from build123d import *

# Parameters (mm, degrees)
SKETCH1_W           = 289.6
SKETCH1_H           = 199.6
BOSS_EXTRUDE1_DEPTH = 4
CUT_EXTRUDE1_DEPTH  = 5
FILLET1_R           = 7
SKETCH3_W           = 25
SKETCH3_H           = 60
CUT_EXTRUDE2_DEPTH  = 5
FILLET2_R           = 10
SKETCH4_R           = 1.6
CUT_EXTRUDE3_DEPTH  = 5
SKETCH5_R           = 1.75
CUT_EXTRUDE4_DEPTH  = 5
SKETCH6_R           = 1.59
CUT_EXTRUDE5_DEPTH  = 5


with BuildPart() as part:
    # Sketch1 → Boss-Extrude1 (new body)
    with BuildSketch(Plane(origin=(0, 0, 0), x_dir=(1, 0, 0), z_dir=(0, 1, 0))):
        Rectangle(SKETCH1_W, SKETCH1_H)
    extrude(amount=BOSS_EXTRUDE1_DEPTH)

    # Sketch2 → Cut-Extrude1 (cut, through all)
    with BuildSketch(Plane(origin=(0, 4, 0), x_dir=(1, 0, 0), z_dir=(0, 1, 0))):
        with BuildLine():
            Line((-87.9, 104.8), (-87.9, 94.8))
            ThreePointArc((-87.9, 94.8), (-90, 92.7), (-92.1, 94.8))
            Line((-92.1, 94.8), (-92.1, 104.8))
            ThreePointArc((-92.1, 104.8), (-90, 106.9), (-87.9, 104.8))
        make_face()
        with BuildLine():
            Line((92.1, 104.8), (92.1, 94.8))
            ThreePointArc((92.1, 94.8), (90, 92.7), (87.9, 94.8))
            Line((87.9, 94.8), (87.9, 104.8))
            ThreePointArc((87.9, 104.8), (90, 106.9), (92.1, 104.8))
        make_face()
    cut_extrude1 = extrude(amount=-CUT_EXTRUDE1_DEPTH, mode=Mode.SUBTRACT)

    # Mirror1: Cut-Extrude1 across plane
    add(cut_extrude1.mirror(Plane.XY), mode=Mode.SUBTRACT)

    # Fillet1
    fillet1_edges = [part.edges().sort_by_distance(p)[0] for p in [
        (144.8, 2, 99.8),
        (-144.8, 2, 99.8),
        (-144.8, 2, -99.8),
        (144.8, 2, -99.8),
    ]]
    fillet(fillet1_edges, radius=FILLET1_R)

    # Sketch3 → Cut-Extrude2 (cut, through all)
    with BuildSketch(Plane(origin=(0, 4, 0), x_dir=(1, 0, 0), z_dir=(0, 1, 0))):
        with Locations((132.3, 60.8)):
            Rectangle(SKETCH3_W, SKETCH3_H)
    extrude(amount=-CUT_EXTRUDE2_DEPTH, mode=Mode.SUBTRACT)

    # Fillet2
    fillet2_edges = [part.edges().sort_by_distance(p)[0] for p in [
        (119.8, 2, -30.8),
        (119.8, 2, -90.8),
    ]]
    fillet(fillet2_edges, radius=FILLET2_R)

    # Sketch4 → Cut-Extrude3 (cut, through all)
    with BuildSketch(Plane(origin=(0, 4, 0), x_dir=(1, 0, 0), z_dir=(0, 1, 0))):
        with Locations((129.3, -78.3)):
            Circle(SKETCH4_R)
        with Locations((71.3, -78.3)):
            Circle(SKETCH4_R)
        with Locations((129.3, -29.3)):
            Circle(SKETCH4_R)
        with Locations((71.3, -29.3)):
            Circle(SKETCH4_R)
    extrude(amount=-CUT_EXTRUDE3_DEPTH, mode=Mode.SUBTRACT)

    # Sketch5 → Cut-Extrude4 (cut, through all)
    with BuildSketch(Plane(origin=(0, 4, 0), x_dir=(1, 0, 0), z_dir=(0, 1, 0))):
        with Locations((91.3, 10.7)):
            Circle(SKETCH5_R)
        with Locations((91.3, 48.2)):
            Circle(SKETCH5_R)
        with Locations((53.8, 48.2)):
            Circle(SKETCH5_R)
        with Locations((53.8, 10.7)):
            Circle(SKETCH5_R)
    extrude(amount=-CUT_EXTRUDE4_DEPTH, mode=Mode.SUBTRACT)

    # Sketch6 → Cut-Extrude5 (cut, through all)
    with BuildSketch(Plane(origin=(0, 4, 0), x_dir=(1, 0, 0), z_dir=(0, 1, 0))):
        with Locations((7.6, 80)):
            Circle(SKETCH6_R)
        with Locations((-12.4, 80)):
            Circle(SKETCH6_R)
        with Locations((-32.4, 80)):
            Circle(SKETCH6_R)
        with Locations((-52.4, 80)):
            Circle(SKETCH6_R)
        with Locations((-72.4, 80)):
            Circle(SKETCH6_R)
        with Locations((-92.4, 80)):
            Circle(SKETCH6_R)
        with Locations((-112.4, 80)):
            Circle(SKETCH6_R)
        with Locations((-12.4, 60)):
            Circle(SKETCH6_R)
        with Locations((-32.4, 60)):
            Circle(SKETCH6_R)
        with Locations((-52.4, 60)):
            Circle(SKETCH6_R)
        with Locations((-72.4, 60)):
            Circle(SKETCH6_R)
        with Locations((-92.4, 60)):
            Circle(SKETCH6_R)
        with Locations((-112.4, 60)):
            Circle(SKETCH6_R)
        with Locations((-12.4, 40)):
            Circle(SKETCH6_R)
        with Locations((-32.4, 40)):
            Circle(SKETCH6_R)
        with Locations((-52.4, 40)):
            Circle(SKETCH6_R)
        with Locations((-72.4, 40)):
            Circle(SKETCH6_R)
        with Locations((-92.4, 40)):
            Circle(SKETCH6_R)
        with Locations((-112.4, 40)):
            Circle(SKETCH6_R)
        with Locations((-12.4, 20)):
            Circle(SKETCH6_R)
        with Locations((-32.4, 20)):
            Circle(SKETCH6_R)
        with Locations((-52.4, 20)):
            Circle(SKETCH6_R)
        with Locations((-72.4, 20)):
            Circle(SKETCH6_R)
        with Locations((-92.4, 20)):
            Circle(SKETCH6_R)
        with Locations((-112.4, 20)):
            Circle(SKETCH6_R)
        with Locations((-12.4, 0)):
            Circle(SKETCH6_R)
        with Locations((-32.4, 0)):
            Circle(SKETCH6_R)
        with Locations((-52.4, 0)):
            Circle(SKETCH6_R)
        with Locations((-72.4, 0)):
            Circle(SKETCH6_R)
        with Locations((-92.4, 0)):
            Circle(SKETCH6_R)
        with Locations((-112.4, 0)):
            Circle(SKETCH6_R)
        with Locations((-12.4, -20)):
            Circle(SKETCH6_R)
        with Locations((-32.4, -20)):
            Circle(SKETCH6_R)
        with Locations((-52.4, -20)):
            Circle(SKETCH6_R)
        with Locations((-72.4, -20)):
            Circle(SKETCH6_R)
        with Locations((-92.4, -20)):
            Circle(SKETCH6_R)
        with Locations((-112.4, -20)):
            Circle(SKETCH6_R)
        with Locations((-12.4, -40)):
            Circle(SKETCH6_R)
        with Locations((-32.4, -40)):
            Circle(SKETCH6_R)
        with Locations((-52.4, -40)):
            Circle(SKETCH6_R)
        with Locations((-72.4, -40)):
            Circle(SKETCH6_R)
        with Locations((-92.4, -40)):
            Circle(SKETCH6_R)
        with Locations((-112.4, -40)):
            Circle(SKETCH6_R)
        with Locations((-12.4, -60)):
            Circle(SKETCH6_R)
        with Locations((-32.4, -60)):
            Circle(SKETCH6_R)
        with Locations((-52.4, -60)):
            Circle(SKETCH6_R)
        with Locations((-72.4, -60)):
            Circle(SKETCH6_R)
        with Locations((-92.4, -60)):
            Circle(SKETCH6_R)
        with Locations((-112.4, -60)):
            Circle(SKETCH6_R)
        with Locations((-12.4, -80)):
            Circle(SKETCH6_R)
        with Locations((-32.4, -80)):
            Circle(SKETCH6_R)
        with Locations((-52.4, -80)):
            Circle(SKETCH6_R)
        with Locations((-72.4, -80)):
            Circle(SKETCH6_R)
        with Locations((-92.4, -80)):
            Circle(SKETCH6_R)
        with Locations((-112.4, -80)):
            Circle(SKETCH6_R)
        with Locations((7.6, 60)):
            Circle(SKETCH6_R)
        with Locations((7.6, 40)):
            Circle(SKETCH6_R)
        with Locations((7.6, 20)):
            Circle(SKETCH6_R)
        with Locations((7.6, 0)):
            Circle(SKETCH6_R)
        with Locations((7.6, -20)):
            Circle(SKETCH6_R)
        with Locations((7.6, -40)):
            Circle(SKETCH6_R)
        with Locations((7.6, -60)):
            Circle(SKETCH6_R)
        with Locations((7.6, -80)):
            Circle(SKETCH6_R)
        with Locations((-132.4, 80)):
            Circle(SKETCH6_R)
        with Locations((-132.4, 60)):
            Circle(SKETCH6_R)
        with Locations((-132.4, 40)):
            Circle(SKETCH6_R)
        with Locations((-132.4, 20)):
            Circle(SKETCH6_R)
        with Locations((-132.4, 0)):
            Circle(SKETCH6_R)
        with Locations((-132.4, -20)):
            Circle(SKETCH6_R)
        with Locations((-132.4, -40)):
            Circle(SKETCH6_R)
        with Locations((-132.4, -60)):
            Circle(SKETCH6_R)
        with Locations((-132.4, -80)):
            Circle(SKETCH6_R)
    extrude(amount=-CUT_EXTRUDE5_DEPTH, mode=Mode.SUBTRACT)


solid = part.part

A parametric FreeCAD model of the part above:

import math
import FreeCAD as App
import Part
import Sketcher

V = App.Vector


def edges_at(feature, points):
    """Names of the edges that pass closest to the given points."""
    edges = feature.Shape.Edges
    near = lambda p: min(range(len(edges)), key=lambda i: edges[i].distToShape(Part.Vertex(*p))[0])
    return sorted({f"Edge{near(p) + 1}" for p in points})

doc = App.newDocument("Part")
body = doc.addObject("PartDesign::Body", "Body")

# Sketch on XZ plane
sketch1 = body.newObject("Sketcher::SketchObject", "Sketch")
sketch1.AttachmentSupport = (doc.getObject("XZ_Plane"), [""])
sketch1.MapMode = "FlatFace"
sketch1.addGeometry(Part.LineSegment(V(-145, -100, 0), V(-145, 100, 0)), False)
sketch1.addGeometry(Part.LineSegment(V(-145, 100, 0), V(145, 100, 0)), False)
sketch1.addGeometry(Part.LineSegment(V(145, 100, 0), V(145, -100, 0)), False)
sketch1.addGeometry(Part.LineSegment(V(145, -100, 0), V(-145, -100, 0)), False)
sketch1.addConstraint(Sketcher.Constraint("Coincident", 0, 2, 1, 1))
sketch1.addConstraint(Sketcher.Constraint("Coincident", 1, 2, 2, 1))
sketch1.addConstraint(Sketcher.Constraint("Coincident", 2, 2, 3, 1))
sketch1.addConstraint(Sketcher.Constraint("Coincident", 3, 2, 0, 1))
sketch1.addConstraint(Sketcher.Constraint("Vertical", 0))
sketch1.addConstraint(Sketcher.Constraint("Horizontal", 1))
sketch1.addConstraint(Sketcher.Constraint("Vertical", 2))
sketch1.addConstraint(Sketcher.Constraint("Horizontal", 3))
sketch1.addConstraint(Sketcher.Constraint("Symmetric", 0, 2, 2, 2, -1, 1))
sketch1.addConstraint(Sketcher.Constraint("DistanceX", 1, 1, 1, 2, 289.6))
sketch1.addConstraint(Sketcher.Constraint("DistanceY", 0, 1, 0, 2, 199.6))
pad1 = body.newObject("PartDesign::Pad", "Pad")
pad1.Profile = sketch1
pad1.Length = 4
pad1.Reversed = True

# Sketch on XZ plane
sketch2 = body.newObject("Sketcher::SketchObject", "Sketch001")
sketch2.AttachmentSupport = (doc.getObject("XZ_Plane"), [""])
sketch2.MapMode = "FlatFace"
sketch2.AttachmentOffset = App.Placement(V(0, 0, -4), App.Rotation())
sketch2.addGeometry(Part.LineSegment(V(-87.9, -94.8, 0), V(-87.9, -104.8, 0)), False)
sketch2.addGeometry(Part.ArcOfCircle(Part.Circle(V(-90, -104.8, 0), V(0, 0, 1), 2.1), math.radians(180), math.radians(360)), False)
sketch2.addGeometry(Part.LineSegment(V(-92.1, -104.8, 0), V(-92.1, -94.8, 0)), False)
sketch2.addGeometry(Part.ArcOfCircle(Part.Circle(V(-90, -94.8, 0), V(0, 0, 1), 2.1), math.radians(0), math.radians(180)), False)
sketch2.addGeometry(Part.LineSegment(V(92.1, -94.8, 0), V(92.1, -104.8, 0)), False)
sketch2.addGeometry(Part.ArcOfCircle(Part.Circle(V(90, -104.8, 0), V(0, 0, 1), 2.1), math.radians(180), math.radians(360)), False)
sketch2.addGeometry(Part.LineSegment(V(87.9, -104.8, 0), V(87.9, -94.8, 0)), False)
sketch2.addGeometry(Part.ArcOfCircle(Part.Circle(V(90, -94.8, 0), V(0, 0, 1), 2.1), math.radians(0), math.radians(180)), False)
sketch2.addConstraint(Sketcher.Constraint("Tangent", 0, 2, 1, 2))
sketch2.addConstraint(Sketcher.Constraint("Tangent", 1, 1, 2, 1))
sketch2.addConstraint(Sketcher.Constraint("Tangent", 2, 2, 3, 2))
sketch2.addConstraint(Sketcher.Constraint("Tangent", 3, 1, 0, 1))
sketch2.addConstraint(Sketcher.Constraint("Tangent", 4, 2, 5, 2))
sketch2.addConstraint(Sketcher.Constraint("Tangent", 5, 1, 6, 1))
sketch2.addConstraint(Sketcher.Constraint("Tangent", 6, 2, 7, 2))
sketch2.addConstraint(Sketcher.Constraint("Tangent", 7, 1, 4, 1))
sketch2.addConstraint(Sketcher.Constraint("Vertical", 0))
sketch2.addConstraint(Sketcher.Constraint("Vertical", 2))
sketch2.addConstraint(Sketcher.Constraint("Vertical", 4))
sketch2.addConstraint(Sketcher.Constraint("Vertical", 6))
sketch2.addConstraint(Sketcher.Constraint("Equal", 3, 5))
sketch2.addConstraint(Sketcher.Constraint("Symmetric", 1, 3, 5, 3, -2))
sketch2.addConstraint(Sketcher.Constraint("Horizontal", 3, 3, 7, 3))
sketch2.addConstraint(Sketcher.Constraint("Radius", 1, 2.1))
sketch2.addConstraint(Sketcher.Constraint("DistanceY", 0, 2, 0, 1, 10.0))
sketch2.addConstraint(Sketcher.Constraint("DistanceX", 1, 3, -1, 1, 90.0))
sketch2.addConstraint(Sketcher.Constraint("DistanceY", 1, 3, -1, 1, 104.8))
pocket1 = body.newObject("PartDesign::Pocket", "Pocket")
pocket1.Profile = sketch2
pocket1.Type = "ThroughAll"
pocket1.Reversed = True
doc.recompute()

mirrored = body.newObject("PartDesign::Mirrored", "Mirrored")
mirrored.Originals = [pocket1]
mirrored.MirrorPlane = (doc.getObject("XY_Plane"), [""])
body.Tip = mirrored
doc.recompute()

fillet = body.newObject("PartDesign::Fillet", "Fillet")
fillet.Base = (mirrored, edges_at(mirrored, [
    (144.8, 2, 99.8),
    (-144.8, 2, 99.8),
    (-144.8, 2, -99.8),
    (144.8, 2, -99.8),
]))
fillet.Radius = 7

# Sketch on XZ plane
sketch3 = body.newObject("Sketcher::SketchObject", "Sketch002")
sketch3.AttachmentSupport = (doc.getObject("XZ_Plane"), [""])
sketch3.MapMode = "FlatFace"
sketch3.AttachmentOffset = App.Placement(V(0, 0, -4), App.Rotation())
sketch3.addGeometry(Part.LineSegment(V(120, -91, 0), V(120, -31, 0)), False)
sketch3.addGeometry(Part.LineSegment(V(120, -31, 0), V(145, -31, 0)), False)
sketch3.addGeometry(Part.LineSegment(V(145, -31, 0), V(145, -91, 0)), False)
sketch3.addGeometry(Part.LineSegment(V(145, -91, 0), V(120, -91, 0)), False)
sketch3.addConstraint(Sketcher.Constraint("Coincident", 0, 2, 1, 1))
sketch3.addConstraint(Sketcher.Constraint("Coincident", 1, 2, 2, 1))
sketch3.addConstraint(Sketcher.Constraint("Coincident", 2, 2, 3, 1))
sketch3.addConstraint(Sketcher.Constraint("Coincident", 3, 2, 0, 1))
sketch3.addConstraint(Sketcher.Constraint("Vertical", 0))
sketch3.addConstraint(Sketcher.Constraint("Horizontal", 1))
sketch3.addConstraint(Sketcher.Constraint("Vertical", 2))
sketch3.addConstraint(Sketcher.Constraint("Horizontal", 3))
sketch3.addConstraint(Sketcher.Constraint("DistanceX", 1, 1, 1, 2, 25.0))
sketch3.addConstraint(Sketcher.Constraint("DistanceY", 0, 1, 0, 2, 60.0))
sketch3.addConstraint(Sketcher.Constraint("DistanceX", -1, 1, 0, 2, 119.8))
sketch3.addConstraint(Sketcher.Constraint("DistanceY", 0, 2, -1, 1, 30.8))
pocket2 = body.newObject("PartDesign::Pocket", "Pocket001")
pocket2.Profile = sketch3
pocket2.Type = "ThroughAll"
pocket2.Reversed = True
doc.recompute()

fillet2 = body.newObject("PartDesign::Fillet", "Fillet001")
fillet2.Base = (pocket2, edges_at(pocket2, [(119.8, 2, -30.8), (119.8, 2, -90.8)]))
fillet2.Radius = 10

# Sketch on XZ plane
sketch4 = body.newObject("Sketcher::SketchObject", "Sketch003")
sketch4.AttachmentSupport = (doc.getObject("XZ_Plane"), [""])
sketch4.MapMode = "FlatFace"
sketch4.AttachmentOffset = App.Placement(V(0, 0, -4), App.Rotation())
sketch4.addGeometry(Part.Circle(V(129.3, 78.3, 0), V(0, 0, 1), 1.6), False)
sketch4.addGeometry(Part.Circle(V(71.3, 78.3, 0), V(0, 0, 1), 1.6), False)
sketch4.addGeometry(Part.Circle(V(129.3, 29.3, 0), V(0, 0, 1), 1.6), False)
sketch4.addGeometry(Part.Circle(V(71.3, 29.3, 0), V(0, 0, 1), 1.6), False)
sketch4.addConstraint(Sketcher.Constraint("Equal", 0, 1))
sketch4.addConstraint(Sketcher.Constraint("Equal", 1, 2))
sketch4.addConstraint(Sketcher.Constraint("Equal", 2, 3))
sketch4.addConstraint(Sketcher.Constraint("Horizontal", 0, 3, 1, 3))
sketch4.addConstraint(Sketcher.Constraint("Horizontal", 2, 3, 3, 3))
sketch4.addConstraint(Sketcher.Constraint("Vertical", 0, 3, 2, 3))
sketch4.addConstraint(Sketcher.Constraint("Vertical", 1, 3, 3, 3))
sketch4.addConstraint(Sketcher.Constraint("Diameter", 0, 3.2))
sketch4.addConstraint(Sketcher.Constraint("DistanceX", 1, 3, 0, 3, 58.0))
sketch4.addConstraint(Sketcher.Constraint("DistanceY", 2, 3, 0, 3, 49.0))
sketch4.addConstraint(Sketcher.Constraint("DistanceX", -1, 1, 0, 3, 129.3))
sketch4.addConstraint(Sketcher.Constraint("DistanceY", -1, 1, 0, 3, 78.3))
pocket3 = body.newObject("PartDesign::Pocket", "Pocket002")
pocket3.Profile = sketch4
pocket3.Type = "ThroughAll"
pocket3.Reversed = True

# Sketch on XZ plane
sketch5 = body.newObject("Sketcher::SketchObject", "Sketch004")
sketch5.AttachmentSupport = (doc.getObject("XZ_Plane"), [""])
sketch5.MapMode = "FlatFace"
sketch5.AttachmentOffset = App.Placement(V(0, 0, -4), App.Rotation())
sketch5.addGeometry(Part.Circle(V(91.3, -10.7, 0), V(0, 0, 1), 1.8), False)
sketch5.addGeometry(Part.Circle(V(91.3, -48.2, 0), V(0, 0, 1), 1.8), False)
sketch5.addGeometry(Part.Circle(V(53.8, -48.2, 0), V(0, 0, 1), 1.8), False)
sketch5.addGeometry(Part.Circle(V(53.8, -10.7, 0), V(0, 0, 1), 1.8), False)
sketch5.addConstraint(Sketcher.Constraint("Equal", 0, 1))
sketch5.addConstraint(Sketcher.Constraint("Equal", 1, 2))
sketch5.addConstraint(Sketcher.Constraint("Equal", 2, 3))
sketch5.addConstraint(Sketcher.Constraint("Horizontal", 1, 3, 2, 3))
sketch5.addConstraint(Sketcher.Constraint("Horizontal", 0, 3, 3, 3))
sketch5.addConstraint(Sketcher.Constraint("Vertical", 0, 3, 1, 3))
sketch5.addConstraint(Sketcher.Constraint("Vertical", 2, 3, 3, 3))
sketch5.addConstraint(Sketcher.Constraint("Diameter", 0, 3.5))
sketch5.addConstraint(Sketcher.Constraint("DistanceX", -1, 1, 0, 3, 91.3))
sketch5.addConstraint(Sketcher.Constraint("DistanceY", 0, 3, -1, 1, 10.7))
sketch5.addConstraint(Sketcher.Constraint("DistanceY", 1, 3, -1, 1, 48.2))
sketch5.addConstraint(Sketcher.Constraint("DistanceX", -1, 1, 2, 3, 53.8))
pocket4 = body.newObject("PartDesign::Pocket", "Pocket003")
pocket4.Profile = sketch5
pocket4.Type = "ThroughAll"
pocket4.Reversed = True

# Sketch on XZ plane
sketch6 = body.newObject("Sketcher::SketchObject", "Sketch005")
sketch6.AttachmentSupport = (doc.getObject("XZ_Plane"), [""])
sketch6.MapMode = "FlatFace"
sketch6.AttachmentOffset = App.Placement(V(0, 0, -4), App.Rotation())
sketch6.addGeometry(Part.Circle(V(7.6, -80, 0), V(0, 0, 1), 1.6), False)
sketch6.addGeometry(Part.Circle(V(-12.4, -80, 0), V(0, 0, 1), 1.6), False)
sketch6.addGeometry(Part.Circle(V(-32.4, -80, 0), V(0, 0, 1), 1.6), False)
sketch6.addGeometry(Part.Circle(V(-52.4, -80, 0), V(0, 0, 1), 1.6), False)
sketch6.addGeometry(Part.Circle(V(-72.4, -80, 0), V(0, 0, 1), 1.6), False)
sketch6.addGeometry(Part.Circle(V(-92.4, -80, 0), V(0, 0, 1), 1.6), False)
sketch6.addGeometry(Part.Circle(V(-112.4, -80, 0), V(0, 0, 1), 1.6), False)
sketch6.addGeometry(Part.Circle(V(-12.4, -60, 0), V(0, 0, 1), 1.6), False)
sketch6.addGeometry(Part.Circle(V(-32.4, -60, 0), V(0, 0, 1), 1.6), False)
sketch6.addGeometry(Part.Circle(V(-52.4, -60, 0), V(0, 0, 1), 1.6), False)
sketch6.addGeometry(Part.Circle(V(-72.4, -60, 0), V(0, 0, 1), 1.6), False)
sketch6.addGeometry(Part.Circle(V(-92.4, -60, 0), V(0, 0, 1), 1.6), False)
sketch6.addGeometry(Part.Circle(V(-112.4, -60, 0), V(0, 0, 1), 1.6), False)
sketch6.addGeometry(Part.Circle(V(-12.4, -40, 0), V(0, 0, 1), 1.6), False)
sketch6.addGeometry(Part.Circle(V(-32.4, -40, 0), V(0, 0, 1), 1.6), False)
sketch6.addGeometry(Part.Circle(V(-52.4, -40, 0), V(0, 0, 1), 1.6), False)
sketch6.addGeometry(Part.Circle(V(-72.4, -40, 0), V(0, 0, 1), 1.6), False)
sketch6.addGeometry(Part.Circle(V(-92.4, -40, 0), V(0, 0, 1), 1.6), False)
sketch6.addGeometry(Part.Circle(V(-112.4, -40, 0), V(0, 0, 1), 1.6), False)
sketch6.addGeometry(Part.Circle(V(-12.4, -20, 0), V(0, 0, 1), 1.6), False)
sketch6.addGeometry(Part.Circle(V(-32.4, -20, 0), V(0, 0, 1), 1.6), False)
sketch6.addGeometry(Part.Circle(V(-52.4, -20, 0), V(0, 0, 1), 1.6), False)
sketch6.addGeometry(Part.Circle(V(-72.4, -20, 0), V(0, 0, 1), 1.6), False)
sketch6.addGeometry(Part.Circle(V(-92.4, -20, 0), V(0, 0, 1), 1.6), False)
sketch6.addGeometry(Part.Circle(V(-112.4, -20, 0), V(0, 0, 1), 1.6), False)
sketch6.addGeometry(Part.Circle(V(-12.4, 0, 0), V(0, 0, 1), 1.6), False)
sketch6.addGeometry(Part.Circle(V(-32.4, 0, 0), V(0, 0, 1), 1.6), False)
sketch6.addGeometry(Part.Circle(V(-52.4, 0, 0), V(0, 0, 1), 1.6), False)
sketch6.addGeometry(Part.Circle(V(-72.4, 0, 0), V(0, 0, 1), 1.6), False)
sketch6.addGeometry(Part.Circle(V(-92.4, 0, 0), V(0, 0, 1), 1.6), False)
sketch6.addGeometry(Part.Circle(V(-112.4, 0, 0), V(0, 0, 1), 1.6), False)
sketch6.addGeometry(Part.Circle(V(-12.4, 20, 0), V(0, 0, 1), 1.6), False)
sketch6.addGeometry(Part.Circle(V(-32.4, 20, 0), V(0, 0, 1), 1.6), False)
sketch6.addGeometry(Part.Circle(V(-52.4, 20, 0), V(0, 0, 1), 1.6), False)
sketch6.addGeometry(Part.Circle(V(-72.4, 20, 0), V(0, 0, 1), 1.6), False)
sketch6.addGeometry(Part.Circle(V(-92.4, 20, 0), V(0, 0, 1), 1.6), False)
sketch6.addGeometry(Part.Circle(V(-112.4, 20, 0), V(0, 0, 1), 1.6), False)
sketch6.addGeometry(Part.Circle(V(-12.4, 40, 0), V(0, 0, 1), 1.6), False)
sketch6.addGeometry(Part.Circle(V(-32.4, 40, 0), V(0, 0, 1), 1.6), False)
sketch6.addGeometry(Part.Circle(V(-52.4, 40, 0), V(0, 0, 1), 1.6), False)
sketch6.addGeometry(Part.Circle(V(-72.4, 40, 0), V(0, 0, 1), 1.6), False)
sketch6.addGeometry(Part.Circle(V(-92.4, 40, 0), V(0, 0, 1), 1.6), False)
sketch6.addGeometry(Part.Circle(V(-112.4, 40, 0), V(0, 0, 1), 1.6), False)
sketch6.addGeometry(Part.Circle(V(-12.4, 60, 0), V(0, 0, 1), 1.6), False)
sketch6.addGeometry(Part.Circle(V(-32.4, 60, 0), V(0, 0, 1), 1.6), False)
sketch6.addGeometry(Part.Circle(V(-52.4, 60, 0), V(0, 0, 1), 1.6), False)
sketch6.addGeometry(Part.Circle(V(-72.4, 60, 0), V(0, 0, 1), 1.6), False)
sketch6.addGeometry(Part.Circle(V(-92.4, 60, 0), V(0, 0, 1), 1.6), False)
sketch6.addGeometry(Part.Circle(V(-112.4, 60, 0), V(0, 0, 1), 1.6), False)
sketch6.addGeometry(Part.Circle(V(-12.4, 80, 0), V(0, 0, 1), 1.6), False)
sketch6.addGeometry(Part.Circle(V(-32.4, 80, 0), V(0, 0, 1), 1.6), False)
sketch6.addGeometry(Part.Circle(V(-52.4, 80, 0), V(0, 0, 1), 1.6), False)
sketch6.addGeometry(Part.Circle(V(-72.4, 80, 0), V(0, 0, 1), 1.6), False)
sketch6.addGeometry(Part.Circle(V(-92.4, 80, 0), V(0, 0, 1), 1.6), False)
sketch6.addGeometry(Part.Circle(V(-112.4, 80, 0), V(0, 0, 1), 1.6), False)
sketch6.addGeometry(Part.Circle(V(7.6, -60, 0), V(0, 0, 1), 1.6), False)
sketch6.addGeometry(Part.Circle(V(7.6, -40, 0), V(0, 0, 1), 1.6), False)
sketch6.addGeometry(Part.Circle(V(7.6, -20, 0), V(0, 0, 1), 1.6), False)
sketch6.addGeometry(Part.Circle(V(7.6, 0, 0), V(0, 0, 1), 1.6), False)
sketch6.addGeometry(Part.Circle(V(7.6, 20, 0), V(0, 0, 1), 1.6), False)
sketch6.addGeometry(Part.Circle(V(7.6, 40, 0), V(0, 0, 1), 1.6), False)
sketch6.addGeometry(Part.Circle(V(7.6, 60, 0), V(0, 0, 1), 1.6), False)
sketch6.addGeometry(Part.Circle(V(7.6, 80, 0), V(0, 0, 1), 1.6), False)
sketch6.addGeometry(Part.Circle(V(-132.4, -80, 0), V(0, 0, 1), 1.6), False)
sketch6.addGeometry(Part.Circle(V(-132.4, -60, 0), V(0, 0, 1), 1.6), False)
sketch6.addGeometry(Part.Circle(V(-132.4, -40, 0), V(0, 0, 1), 1.6), False)
sketch6.addGeometry(Part.Circle(V(-132.4, -20, 0), V(0, 0, 1), 1.6), False)
sketch6.addGeometry(Part.Circle(V(-132.4, 0, 0), V(0, 0, 1), 1.6), False)
sketch6.addGeometry(Part.Circle(V(-132.4, 20, 0), V(0, 0, 1), 1.6), False)
sketch6.addGeometry(Part.Circle(V(-132.4, 40, 0), V(0, 0, 1), 1.6), False)
sketch6.addGeometry(Part.Circle(V(-132.4, 60, 0), V(0, 0, 1), 1.6), False)
sketch6.addGeometry(Part.Circle(V(-132.4, 80, 0), V(0, 0, 1), 1.6), False)
sketch6.addConstraint(Sketcher.Constraint("Equal", 0, 1))
sketch6.addConstraint(Sketcher.Constraint("Equal", 1, 2))
sketch6.addConstraint(Sketcher.Constraint("Equal", 2, 3))
sketch6.addConstraint(Sketcher.Constraint("Equal", 3, 4))
sketch6.addConstraint(Sketcher.Constraint("Equal", 4, 5))
sketch6.addConstraint(Sketcher.Constraint("Equal", 5, 6))
sketch6.addConstraint(Sketcher.Constraint("Equal", 6, 7))
sketch6.addConstraint(Sketcher.Constraint("Equal", 7, 8))
sketch6.addConstraint(Sketcher.Constraint("Equal", 8, 9))
sketch6.addConstraint(Sketcher.Constraint("Equal", 9, 10))
sketch6.addConstraint(Sketcher.Constraint("Equal", 10, 11))
sketch6.addConstraint(Sketcher.Constraint("Equal", 11, 12))
sketch6.addConstraint(Sketcher.Constraint("Equal", 12, 13))
sketch6.addConstraint(Sketcher.Constraint("Equal", 13, 14))
sketch6.addConstraint(Sketcher.Constraint("Equal", 14, 15))
sketch6.addConstraint(Sketcher.Constraint("Equal", 15, 16))
sketch6.addConstraint(Sketcher.Constraint("Equal", 16, 17))
sketch6.addConstraint(Sketcher.Constraint("Equal", 17, 18))
sketch6.addConstraint(Sketcher.Constraint("Equal", 18, 19))
sketch6.addConstraint(Sketcher.Constraint("Equal", 19, 20))
sketch6.addConstraint(Sketcher.Constraint("Equal", 20, 21))
sketch6.addConstraint(Sketcher.Constraint("Equal", 21, 22))
sketch6.addConstraint(Sketcher.Constraint("Equal", 22, 23))
sketch6.addConstraint(Sketcher.Constraint("Equal", 23, 24))
sketch6.addConstraint(Sketcher.Constraint("Equal", 24, 25))
sketch6.addConstraint(Sketcher.Constraint("Equal", 25, 26))
sketch6.addConstraint(Sketcher.Constraint("Equal", 26, 27))
sketch6.addConstraint(Sketcher.Constraint("Equal", 27, 28))
sketch6.addConstraint(Sketcher.Constraint("Equal", 28, 29))
sketch6.addConstraint(Sketcher.Constraint("Equal", 29, 30))
sketch6.addConstraint(Sketcher.Constraint("Equal", 30, 31))
sketch6.addConstraint(Sketcher.Constraint("Equal", 31, 32))
sketch6.addConstraint(Sketcher.Constraint("Equal", 32, 33))
sketch6.addConstraint(Sketcher.Constraint("Equal", 33, 34))
sketch6.addConstraint(Sketcher.Constraint("Equal", 34, 35))
sketch6.addConstraint(Sketcher.Constraint("Equal", 35, 36))
sketch6.addConstraint(Sketcher.Constraint("Equal", 36, 37))
sketch6.addConstraint(Sketcher.Constraint("Equal", 37, 38))
sketch6.addConstraint(Sketcher.Constraint("Equal", 38, 39))
sketch6.addConstraint(Sketcher.Constraint("Equal", 39, 40))
sketch6.addConstraint(Sketcher.Constraint("Equal", 40, 41))
sketch6.addConstraint(Sketcher.Constraint("Equal", 41, 42))
sketch6.addConstraint(Sketcher.Constraint("Equal", 42, 43))
sketch6.addConstraint(Sketcher.Constraint("Equal", 43, 44))
sketch6.addConstraint(Sketcher.Constraint("Equal", 44, 45))
sketch6.addConstraint(Sketcher.Constraint("Equal", 45, 46))
sketch6.addConstraint(Sketcher.Constraint("Equal", 46, 47))
sketch6.addConstraint(Sketcher.Constraint("Equal", 47, 48))
sketch6.addConstraint(Sketcher.Constraint("Equal", 48, 49))
sketch6.addConstraint(Sketcher.Constraint("Equal", 49, 50))
sketch6.addConstraint(Sketcher.Constraint("Equal", 50, 51))
sketch6.addConstraint(Sketcher.Constraint("Equal", 51, 52))
sketch6.addConstraint(Sketcher.Constraint("Equal", 52, 53))
sketch6.addConstraint(Sketcher.Constraint("Equal", 53, 54))
sketch6.addConstraint(Sketcher.Constraint("Equal", 54, 55))
sketch6.addConstraint(Sketcher.Constraint("Equal", 55, 56))
sketch6.addConstraint(Sketcher.Constraint("Equal", 56, 57))
sketch6.addConstraint(Sketcher.Constraint("Equal", 57, 58))
sketch6.addConstraint(Sketcher.Constraint("Equal", 58, 59))
sketch6.addConstraint(Sketcher.Constraint("Equal", 59, 60))
sketch6.addConstraint(Sketcher.Constraint("Equal", 60, 61))
sketch6.addConstraint(Sketcher.Constraint("Equal", 61, 62))
sketch6.addConstraint(Sketcher.Constraint("Equal", 62, 63))
sketch6.addConstraint(Sketcher.Constraint("Equal", 63, 64))
sketch6.addConstraint(Sketcher.Constraint("Equal", 64, 65))
sketch6.addConstraint(Sketcher.Constraint("Equal", 65, 66))
sketch6.addConstraint(Sketcher.Constraint("Equal", 66, 67))
sketch6.addConstraint(Sketcher.Constraint("Equal", 67, 68))
sketch6.addConstraint(Sketcher.Constraint("Equal", 68, 69))
sketch6.addConstraint(Sketcher.Constraint("Equal", 69, 70))
sketch6.addConstraint(Sketcher.Constraint("Equal", 70, 71))
sketch6.addConstraint(Sketcher.Constraint("Symmetric", 19, 3, 31, 3, -1))
sketch6.addConstraint(Sketcher.Constraint("Symmetric", 20, 3, 32, 3, -1))
sketch6.addConstraint(Sketcher.Constraint("Symmetric", 21, 3, 33, 3, -1))
sketch6.addConstraint(Sketcher.Constraint("Symmetric", 22, 3, 34, 3, -1))
sketch6.addConstraint(Sketcher.Constraint("Symmetric", 23, 3, 35, 3, -1))
sketch6.addConstraint(Sketcher.Constraint("Symmetric", 24, 3, 36, 3, -1))
sketch6.addConstraint(Sketcher.Constraint("Symmetric", 13, 3, 37, 3, -1))
sketch6.addConstraint(Sketcher.Constraint("Symmetric", 14, 3, 38, 3, -1))
sketch6.addConstraint(Sketcher.Constraint("Symmetric", 15, 3, 39, 3, -1))
sketch6.addConstraint(Sketcher.Constraint("Symmetric", 16, 3, 40, 3, -1))
sketch6.addConstraint(Sketcher.Constraint("Symmetric", 17, 3, 41, 3, -1))
sketch6.addConstraint(Sketcher.Constraint("Symmetric", 18, 3, 42, 3, -1))
sketch6.addConstraint(Sketcher.Constraint("Symmetric", 7, 3, 43, 3, -1))
sketch6.addConstraint(Sketcher.Constraint("Symmetric", 8, 3, 44, 3, -1))
sketch6.addConstraint(Sketcher.Constraint("Symmetric", 9, 3, 45, 3, -1))
sketch6.addConstraint(Sketcher.Constraint("Symmetric", 10, 3, 46, 3, -1))
sketch6.addConstraint(Sketcher.Constraint("Symmetric", 11, 3, 47, 3, -1))
sketch6.addConstraint(Sketcher.Constraint("Symmetric", 12, 3, 48, 3, -1))
sketch6.addConstraint(Sketcher.Constraint("Symmetric", 1, 3, 49, 3, -1))
sketch6.addConstraint(Sketcher.Constraint("Symmetric", 2, 3, 50, 3, -1))
sketch6.addConstraint(Sketcher.Constraint("Symmetric", 3, 3, 51, 3, -1))
sketch6.addConstraint(Sketcher.Constraint("Symmetric", 4, 3, 52, 3, -1))
sketch6.addConstraint(Sketcher.Constraint("Symmetric", 5, 3, 53, 3, -1))
sketch6.addConstraint(Sketcher.Constraint("Symmetric", 6, 3, 54, 3, -1))
sketch6.addConstraint(Sketcher.Constraint("Symmetric", 57, 3, 59, 3, -1))
sketch6.addConstraint(Sketcher.Constraint("Symmetric", 56, 3, 60, 3, -1))
sketch6.addConstraint(Sketcher.Constraint("Symmetric", 55, 3, 61, 3, -1))
sketch6.addConstraint(Sketcher.Constraint("Symmetric", 0, 3, 62, 3, -1))
sketch6.addConstraint(Sketcher.Constraint("Symmetric", 66, 3, 68, 3, -1))
sketch6.addConstraint(Sketcher.Constraint("Symmetric", 65, 3, 69, 3, -1))
sketch6.addConstraint(Sketcher.Constraint("Symmetric", 64, 3, 70, 3, -1))
sketch6.addConstraint(Sketcher.Constraint("Symmetric", 63, 3, 71, 3, -1))
sketch6.addConstraint(Sketcher.Constraint("PointOnObject", 25, 3, -1))
sketch6.addConstraint(Sketcher.Constraint("PointOnObject", 26, 3, -1))
sketch6.addConstraint(Sketcher.Constraint("PointOnObject", 27, 3, -1))
sketch6.addConstraint(Sketcher.Constraint("PointOnObject", 28, 3, -1))
sketch6.addConstraint(Sketcher.Constraint("PointOnObject", 29, 3, -1))
sketch6.addConstraint(Sketcher.Constraint("PointOnObject", 30, 3, -1))
sketch6.addConstraint(Sketcher.Constraint("PointOnObject", 58, 3, -1))
sketch6.addConstraint(Sketcher.Constraint("PointOnObject", 67, 3, -1))
sketch6.addConstraint(Sketcher.Constraint("Horizontal", 0, 3, 1, 3))
sketch6.addConstraint(Sketcher.Constraint("Horizontal", 1, 3, 2, 3))
sketch6.addConstraint(Sketcher.Constraint("Horizontal", 2, 3, 3, 3))
sketch6.addConstraint(Sketcher.Constraint("Horizontal", 3, 3, 4, 3))
sketch6.addConstraint(Sketcher.Constraint("Horizontal", 4, 3, 5, 3))
sketch6.addConstraint(Sketcher.Constraint("Horizontal", 5, 3, 6, 3))
sketch6.addConstraint(Sketcher.Constraint("Horizontal", 7, 3, 8, 3))
sketch6.addConstraint(Sketcher.Constraint("Horizontal", 8, 3, 9, 3))
sketch6.addConstraint(Sketcher.Constraint("Horizontal", 9, 3, 10, 3))
sketch6.addConstraint(Sketcher.Constraint("Horizontal", 10, 3, 11, 3))
sketch6.addConstraint(Sketcher.Constraint("Horizontal", 11, 3, 12, 3))
sketch6.addConstraint(Sketcher.Constraint("Horizontal", 13, 3, 14, 3))
sketch6.addConstraint(Sketcher.Constraint("Horizontal", 14, 3, 15, 3))
sketch6.addConstraint(Sketcher.Constraint("Horizontal", 15, 3, 16, 3))
sketch6.addConstraint(Sketcher.Constraint("Horizontal", 16, 3, 17, 3))
sketch6.addConstraint(Sketcher.Constraint("Horizontal", 17, 3, 18, 3))
sketch6.addConstraint(Sketcher.Constraint("Horizontal", 19, 3, 20, 3))
sketch6.addConstraint(Sketcher.Constraint("Horizontal", 20, 3, 21, 3))
sketch6.addConstraint(Sketcher.Constraint("Horizontal", 21, 3, 22, 3))
sketch6.addConstraint(Sketcher.Constraint("Horizontal", 22, 3, 23, 3))
sketch6.addConstraint(Sketcher.Constraint("Horizontal", 23, 3, 24, 3))
sketch6.addConstraint(Sketcher.Constraint("Horizontal", 12, 3, 55, 3))
sketch6.addConstraint(Sketcher.Constraint("Horizontal", 18, 3, 56, 3))
sketch6.addConstraint(Sketcher.Constraint("Horizontal", 24, 3, 57, 3))
sketch6.addConstraint(Sketcher.Constraint("Horizontal", 6, 3, 63, 3))
sketch6.addConstraint(Sketcher.Constraint("Horizontal", 55, 3, 64, 3))
sketch6.addConstraint(Sketcher.Constraint("Horizontal", 56, 3, 65, 3))
sketch6.addConstraint(Sketcher.Constraint("Horizontal", 57, 3, 66, 3))
sketch6.addConstraint(Sketcher.Constraint("Vertical", 1, 3, 7, 3))
sketch6.addConstraint(Sketcher.Constraint("Vertical", 2, 3, 8, 3))
sketch6.addConstraint(Sketcher.Constraint("Vertical", 3, 3, 9, 3))
sketch6.addConstraint(Sketcher.Constraint("Vertical", 4, 3, 10, 3))
sketch6.addConstraint(Sketcher.Constraint("Vertical", 5, 3, 11, 3))
sketch6.addConstraint(Sketcher.Constraint("Vertical", 6, 3, 12, 3))
sketch6.addConstraint(Sketcher.Constraint("Vertical", 7, 3, 13, 3))
sketch6.addConstraint(Sketcher.Constraint("Vertical", 8, 3, 14, 3))
sketch6.addConstraint(Sketcher.Constraint("Vertical", 9, 3, 15, 3))
sketch6.addConstraint(Sketcher.Constraint("Vertical", 10, 3, 16, 3))
sketch6.addConstraint(Sketcher.Constraint("Vertical", 11, 3, 17, 3))
sketch6.addConstraint(Sketcher.Constraint("Vertical", 12, 3, 18, 3))
sketch6.addConstraint(Sketcher.Constraint("Vertical", 13, 3, 19, 3))
sketch6.addConstraint(Sketcher.Constraint("Vertical", 14, 3, 20, 3))
sketch6.addConstraint(Sketcher.Constraint("Vertical", 15, 3, 21, 3))
sketch6.addConstraint(Sketcher.Constraint("Vertical", 16, 3, 22, 3))
sketch6.addConstraint(Sketcher.Constraint("Vertical", 17, 3, 23, 3))
sketch6.addConstraint(Sketcher.Constraint("Vertical", 18, 3, 24, 3))
sketch6.addConstraint(Sketcher.Constraint("Vertical", 19, 3, 25, 3))
sketch6.addConstraint(Sketcher.Constraint("Vertical", 20, 3, 26, 3))
sketch6.addConstraint(Sketcher.Constraint("Vertical", 21, 3, 27, 3))
sketch6.addConstraint(Sketcher.Constraint("Vertical", 22, 3, 28, 3))
sketch6.addConstraint(Sketcher.Constraint("Vertical", 23, 3, 29, 3))
sketch6.addConstraint(Sketcher.Constraint("Vertical", 24, 3, 30, 3))
sketch6.addConstraint(Sketcher.Constraint("Vertical", 0, 3, 55, 3))
sketch6.addConstraint(Sketcher.Constraint("Vertical", 55, 3, 56, 3))
sketch6.addConstraint(Sketcher.Constraint("Vertical", 56, 3, 57, 3))
sketch6.addConstraint(Sketcher.Constraint("Vertical", 57, 3, 58, 3))
sketch6.addConstraint(Sketcher.Constraint("Vertical", 63, 3, 64, 3))
sketch6.addConstraint(Sketcher.Constraint("Vertical", 64, 3, 65, 3))
sketch6.addConstraint(Sketcher.Constraint("Vertical", 65, 3, 66, 3))
sketch6.addConstraint(Sketcher.Constraint("Vertical", 66, 3, 67, 3))
sketch6.addConstraint(Sketcher.Constraint("Diameter", 0, 3.18))
sketch6.addConstraint(Sketcher.Constraint("DistanceY", 0, 3, -1, 1, 80.0))
sketch6.addConstraint(Sketcher.Constraint("DistanceY", 7, 3, -1, 1, 60.0))
sketch6.addConstraint(Sketcher.Constraint("DistanceY", 13, 3, -1, 1, 40.0))
sketch6.addConstraint(Sketcher.Constraint("DistanceY", 19, 3, -1, 1, 20.0))
sketch6.addConstraint(Sketcher.Constraint("DistanceX", -1, 1, 0, 3, 7.6))
sketch6.addConstraint(Sketcher.Constraint("DistanceX", 1, 3, -1, 1, 12.4))
sketch6.addConstraint(Sketcher.Constraint("DistanceX", 2, 3, -1, 1, 32.4))
sketch6.addConstraint(Sketcher.Constraint("DistanceX", 3, 3, -1, 1, 52.4))
sketch6.addConstraint(Sketcher.Constraint("DistanceX", 4, 3, -1, 1, 72.4))
sketch6.addConstraint(Sketcher.Constraint("DistanceX", 5, 3, -1, 1, 92.4))
sketch6.addConstraint(Sketcher.Constraint("DistanceX", 6, 3, -1, 1, 112.4))
sketch6.addConstraint(Sketcher.Constraint("DistanceX", 63, 3, -1, 1, 132.4))
pocket5 = body.newObject("PartDesign::Pocket", "Pocket004")
pocket5.Profile = sketch6
pocket5.Type = "ThroughAll"
pocket5.Reversed = True

doc.recompute()
